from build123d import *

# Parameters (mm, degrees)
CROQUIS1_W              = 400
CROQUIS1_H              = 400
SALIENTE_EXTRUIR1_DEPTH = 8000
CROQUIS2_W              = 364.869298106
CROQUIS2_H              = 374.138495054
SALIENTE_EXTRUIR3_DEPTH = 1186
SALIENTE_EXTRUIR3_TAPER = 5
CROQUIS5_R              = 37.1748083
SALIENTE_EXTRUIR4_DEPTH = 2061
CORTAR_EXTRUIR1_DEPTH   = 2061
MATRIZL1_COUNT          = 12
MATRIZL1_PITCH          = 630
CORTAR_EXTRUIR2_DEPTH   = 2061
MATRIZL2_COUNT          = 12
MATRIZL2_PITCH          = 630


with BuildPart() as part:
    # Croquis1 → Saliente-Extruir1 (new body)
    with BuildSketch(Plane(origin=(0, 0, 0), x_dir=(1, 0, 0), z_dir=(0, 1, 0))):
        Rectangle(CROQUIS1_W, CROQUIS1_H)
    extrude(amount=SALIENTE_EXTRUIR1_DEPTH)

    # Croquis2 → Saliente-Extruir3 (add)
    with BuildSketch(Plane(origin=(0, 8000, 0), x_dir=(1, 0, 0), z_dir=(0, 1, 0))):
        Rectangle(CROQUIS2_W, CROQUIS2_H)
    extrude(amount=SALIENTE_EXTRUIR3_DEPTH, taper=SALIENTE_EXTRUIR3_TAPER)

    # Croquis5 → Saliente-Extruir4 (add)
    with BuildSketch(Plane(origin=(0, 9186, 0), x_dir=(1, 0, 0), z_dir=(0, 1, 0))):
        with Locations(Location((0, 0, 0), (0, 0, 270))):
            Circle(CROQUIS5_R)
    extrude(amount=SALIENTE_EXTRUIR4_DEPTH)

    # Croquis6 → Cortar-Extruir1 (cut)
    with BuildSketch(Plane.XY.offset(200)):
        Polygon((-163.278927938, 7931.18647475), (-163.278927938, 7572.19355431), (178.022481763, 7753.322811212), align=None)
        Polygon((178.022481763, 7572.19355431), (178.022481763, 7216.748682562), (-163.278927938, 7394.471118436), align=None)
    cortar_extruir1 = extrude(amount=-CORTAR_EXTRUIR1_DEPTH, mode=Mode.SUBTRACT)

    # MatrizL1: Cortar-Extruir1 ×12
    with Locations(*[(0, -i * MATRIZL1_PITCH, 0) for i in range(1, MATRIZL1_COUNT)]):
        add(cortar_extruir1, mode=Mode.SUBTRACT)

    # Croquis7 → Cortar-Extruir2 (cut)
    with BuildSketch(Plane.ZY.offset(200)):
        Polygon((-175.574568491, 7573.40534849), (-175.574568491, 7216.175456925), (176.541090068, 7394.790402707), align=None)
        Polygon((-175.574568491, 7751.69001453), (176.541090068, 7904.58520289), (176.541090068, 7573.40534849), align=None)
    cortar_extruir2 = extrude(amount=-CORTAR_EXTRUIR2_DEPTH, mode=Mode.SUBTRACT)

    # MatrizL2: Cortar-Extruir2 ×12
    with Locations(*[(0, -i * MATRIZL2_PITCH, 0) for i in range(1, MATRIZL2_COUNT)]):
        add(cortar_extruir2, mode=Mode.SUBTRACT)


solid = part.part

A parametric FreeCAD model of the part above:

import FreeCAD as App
import Part
import Sketcher

doc = App.newDocument("Part")
body = doc.addObject("PartDesign::Body", "Body")

# Sketch on XZ plane
sketch1 = body.newObject("Sketcher::SketchObject", "Sketch")
sketch1.AttachmentSupport = (doc.getObject("XZ_Plane"), [""])
sketch1.MapMode = "FlatFace"
sketch1.addGeometry([
    Part.LineSegment(App.Vector(-200, -200, 0), App.Vector(-200, 200, 0)),
    Part.LineSegment(App.Vector(-200, 200, 0), App.Vector(200, 200, 0)),
    Part.LineSegment(App.Vector(200, 200, 0), App.Vector(200, -200, 0)),
    Part.LineSegment(App.Vector(200, -200, 0), App.Vector(-200, -200, 0)),
], False)
sketch1.addConstraint([
    Sketcher.Constraint("Coincident", 0, 2, 1, 1),
    Sketcher.Constraint("Coincident", 1, 2, 2, 1),
    Sketcher.Constraint("Coincident", 2, 2, 3, 1),
    Sketcher.Constraint("Coincident", 3, 2, 0, 1),
    Sketcher.Constraint("Vertical", 0),
    Sketcher.Constraint("Horizontal", 1),
    Sketcher.Constraint("Vertical", 2),
    Sketcher.Constraint("Horizontal", 3),
    Sketcher.Constraint("Symmetric", 0, 2, 2, 2, -1, 1),
    Sketcher.Constraint("Equal", 3, 0),
    Sketcher.Constraint("DistanceX", 1, 1, 1, 2, 400.0),
])
pad1 = body.newObject("PartDesign::Pad", "Pad")
pad1.Profile = sketch1
pad1.Length = 8000
pad1.Reversed = True

# Sketch on XZ plane
sketch2 = body.newObject("Sketcher::SketchObject", "Sketch001")
sketch2.AttachmentSupport = (doc.getObject("XZ_Plane"), [""])
sketch2.MapMode = "FlatFace"
sketch2.AttachmentOffset = App.Placement(App.Vector(0, 0, -8000), App.Rotation())
sketch2.addGeometry([
    Part.LineSegment(App.Vector(-182.434649, -187.069248, 0), App.Vector(-182.434649, 187.069248, 0)),
    Part.LineSegment(App.Vector(-182.434649, 187.069248, 0), App.Vector(182.434649, 187.069248, 0)),
    Part.LineSegment(App.Vector(182.434649, 187.069248, 0), App.Vector(182.434649, -187.069248, 0)),
    Part.LineSegment(App.Vector(182.434649, -187.069248, 0), App.Vector(-182.434649, -187.069248, 0)),
], False)
sketch2.addConstraint([
    Sketcher.Constraint("Coincident", 0, 2, 1, 1),
    Sketcher.Constraint("Coincident", 1, 2, 2, 1),
    Sketcher.Constraint("Coincident", 2, 2, 3, 1),
    Sketcher.Constraint("Coincident", 3, 2, 0, 1),
    Sketcher.Constraint("Vertical", 0),
    Sketcher.Constraint("Horizontal", 1),
    Sketcher.Constraint("Vertical", 2),
    Sketcher.Constraint("Horizontal", 3),
    Sketcher.Constraint("Symmetric", 0, 2, 2, 2, -1, 1),
    Sketcher.Constraint("DistanceX", 1, 1, 1, 2, 364.869298),
    Sketcher.Constraint("DistanceY", 0, 1, 0, 2, 374.138495),
])
pad2 = body.newObject("PartDesign::Pad", "Pad001")
pad2.Profile = sketch2
pad2.Length = 1186
pad2.Reversed = True
pad2.TaperAngle = -5

# Sketch on XZ plane
sketch3 = body.newObject("Sketcher::SketchObject", "Sketch002")
sketch3.AttachmentSupport = (doc.getObject("XZ_Plane"), [""])
sketch3.MapMode = "FlatFace"
sketch3.AttachmentOffset = App.Placement(App.Vector(0, 0, -9186), App.Rotation())
sketch3.addGeometry(Part.Circle(App.Vector(0, 0, 0), App.Vector(0, 0, 1), 37.174808), False)
sketch3.addConstraint([
    Sketcher.Constraint("Coincident", 0, 3, -1, 1),
    Sketcher.Constraint("Diameter", 0, 74.349617),
])
pad3 = body.newObject("PartDesign::Pad", "Pad002")
pad3.Profile = sketch3
pad3.Length = 2061
pad3.Reversed = True

# Sketch on XY plane
sketch4 = body.newObject("Sketcher::SketchObject", "Sketch003")
sketch4.AttachmentSupport = (doc.getObject("XY_Plane"), [""])
sketch4.MapMode = "FlatFace"
sketch4.AttachmentOffset = App.Placement(App.Vector(0, 0, 200), App.Rotation())
sketch4.addGeometry([
    Part.LineSegment(App.Vector(-163.278928, 7931.186475, 0), App.Vector(-163.278928, 7572.193554, 0)),  # 0
    Part.LineSegment(App.Vector(-163.278928, 7572.193554, 0), App.Vector(178.022482, 7753.322811, 0)),  # 1
    Part.LineSegment(App.Vector(178.022482, 7753.322811, 0), App.Vector(-163.278928, 7931.186475, 0)),  # 2
    Part.LineSegment(App.Vector(178.022482, 7216.748683, 0), App.Vector(178.022482, 7572.193554, 0)),  # 3
    Part.LineSegment(App.Vector(178.022482, 7572.193554, 0), App.Vector(-163.278928, 7394.471118, 0)),  # 4
    Part.LineSegment(App.Vector(-163.278928, 7394.471118, 0), App.Vector(178.022482, 7216.748683, 0)),  # 5
], False)
sketch4.addConstraint([
    Sketcher.Constraint("Coincident", 0, 2, 1, 1),
    Sketcher.Constraint("Coincident", 1, 2, 2, 1),
    Sketcher.Constraint("Coincident", 2, 2, 0, 1),
    Sketcher.Constraint("Coincident", 3, 2, 4, 1),
    Sketcher.Constraint("Coincident", 4, 2, 5, 1),
    Sketcher.Constraint("Coincident", 5, 2, 3, 1),
    Sketcher.Constraint("Vertical", 0),
    Sketcher.Constraint("Vertical", 3),
    Sketcher.Constraint("Horizontal", 0, 2, 3, 2),
    Sketcher.Constraint("Vertical", 1, 2, 3, 2),
    Sketcher.Constraint("Vertical", 2, 2, 4, 2),
    Sketcher.Constraint("Equal", 4, 5),
    Sketcher.Constraint("DistanceY", 0, 2, 0, 1, 358.99292),
    Sketcher.Constraint("DistanceY", 3, 1, 3, 2, 355.444872),
    Sketcher.Constraint("Distance", 4, 384.801139),
    Sketcher.Constraint("DistanceX", -1, 1, 1, 2, 178.022482),
    Sketcher.Constraint("DistanceY", -1, 1, 1, 2, 7753.322811),
    Sketcher.Constraint("DistanceY", -1, 1, 4, 2, 7394.471118),
])
pocket1 = body.newObject("PartDesign::Pocket", "Pocket")
pocket1.Profile = sketch4
pocket1.Length = 2061
doc.recompute()

linearpattern = body.newObject("PartDesign::LinearPattern", "LinearPattern")
linearpattern.Originals = [pocket1]
linearpattern.Direction = (doc.getObject("Y_Axis"), [""])
linearpattern.Mode = "offset"
linearpattern.Offset = 630
linearpattern.Occurrences = 12
linearpattern.Reversed = True
body.Tip = linearpattern

# Sketch on YZ plane
sketch5 = body.newObject("Sketcher::SketchObject", "Sketch004")
sketch5.AttachmentSupport = (doc.getObject("YZ_Plane"), [""])
sketch5.MapMode = "FlatFace"
sketch5.AttachmentOffset = App.Placement(App.Vector(0, 0, -200), App.Rotation())
sketch5.addGeometry([
    Part.LineSegment(App.Vector(7573.405348, -175.574568, 0), App.Vector(7216.175457, -175.574568, 0)),  # 0
    Part.LineSegment(App.Vector(7216.175457, -175.574568, 0), App.Vector(7394.790403, 176.54109, 0)),  # 1
    Part.LineSegment(App.Vector(7394.790403, 176.54109, 0), App.Vector(7573.405348, -175.574568, 0)),  # 2
    Part.LineSegment(App.Vector(7904.585203, 176.54109, 0), App.Vector(7751.690015, -175.574568, 0)),  # 3
    Part.LineSegment(App.Vector(7751.690015, -175.574568, 0), App.Vector(7573.405348, 176.54109, 0)),  # 4
    Part.LineSegment(App.Vector(7573.405348, 176.54109, 0), App.Vector(7904.585203, 176.54109, 0)),  # 5
], False)
sketch5.addConstraint([
    Sketcher.Constraint("Coincident", 0, 2, 1, 1),
    Sketcher.Constraint("Coincident", 1, 2, 2, 1),
    Sketcher.Constraint("Coincident", 2, 2, 0, 1),
    Sketcher.Constraint("Coincident", 3, 2, 4, 1),
    Sketcher.Constraint("Coincident", 4, 2, 5, 1),
    Sketcher.Constraint("Coincident", 5, 2, 3, 1),
    Sketcher.Constraint("Horizontal", 0),
    Sketcher.Constraint("Horizontal", 5),
    Sketcher.Constraint("Horizontal", 2, 2, 3, 2),
    Sketcher.Constraint("Horizontal", 1, 2, 4, 2),
    Sketcher.Constraint("Vertical", 2, 2, 4, 2),
    Sketcher.Constraint("Equal", 1, 2),
    Sketcher.Constraint("DistanceX", 0, 2, 0, 1, 357.229892),
    Sketcher.Constraint("DistanceX", 1, 2, 5, 2, 509.7948),
    Sketcher.Constraint("Distance", 4, 394.678172),
    Sketcher.Constraint("DistanceY", 0, 2, -1, 1, 175.574568),
    Sketcher.Constraint("DistanceY", -1, 1, 1, 2, 176.54109),
    Sketcher.Constraint("DistanceX", -1, 1, 2, 2, 7573.405348),
])
pocket2 = body.newObject("PartDesign::Pocket", "Pocket001")
pocket2.Profile = sketch5
pocket2.Length = 2061
pocket2.Reversed = True
doc.recompute()

linearpattern2 = body.newObject("PartDesign::LinearPattern", "LinearPattern001")
linearpattern2.Originals = [pocket2]
linearpattern2.Direction = (doc.getObject("Y_Axis"), [""])
linearpattern2.Mode = "offset"
linearpattern2.Offset = 630
linearpattern2.Occurrences = 12
linearpattern2.Reversed = True
body.Tip = linearpattern2

doc.recompute()
